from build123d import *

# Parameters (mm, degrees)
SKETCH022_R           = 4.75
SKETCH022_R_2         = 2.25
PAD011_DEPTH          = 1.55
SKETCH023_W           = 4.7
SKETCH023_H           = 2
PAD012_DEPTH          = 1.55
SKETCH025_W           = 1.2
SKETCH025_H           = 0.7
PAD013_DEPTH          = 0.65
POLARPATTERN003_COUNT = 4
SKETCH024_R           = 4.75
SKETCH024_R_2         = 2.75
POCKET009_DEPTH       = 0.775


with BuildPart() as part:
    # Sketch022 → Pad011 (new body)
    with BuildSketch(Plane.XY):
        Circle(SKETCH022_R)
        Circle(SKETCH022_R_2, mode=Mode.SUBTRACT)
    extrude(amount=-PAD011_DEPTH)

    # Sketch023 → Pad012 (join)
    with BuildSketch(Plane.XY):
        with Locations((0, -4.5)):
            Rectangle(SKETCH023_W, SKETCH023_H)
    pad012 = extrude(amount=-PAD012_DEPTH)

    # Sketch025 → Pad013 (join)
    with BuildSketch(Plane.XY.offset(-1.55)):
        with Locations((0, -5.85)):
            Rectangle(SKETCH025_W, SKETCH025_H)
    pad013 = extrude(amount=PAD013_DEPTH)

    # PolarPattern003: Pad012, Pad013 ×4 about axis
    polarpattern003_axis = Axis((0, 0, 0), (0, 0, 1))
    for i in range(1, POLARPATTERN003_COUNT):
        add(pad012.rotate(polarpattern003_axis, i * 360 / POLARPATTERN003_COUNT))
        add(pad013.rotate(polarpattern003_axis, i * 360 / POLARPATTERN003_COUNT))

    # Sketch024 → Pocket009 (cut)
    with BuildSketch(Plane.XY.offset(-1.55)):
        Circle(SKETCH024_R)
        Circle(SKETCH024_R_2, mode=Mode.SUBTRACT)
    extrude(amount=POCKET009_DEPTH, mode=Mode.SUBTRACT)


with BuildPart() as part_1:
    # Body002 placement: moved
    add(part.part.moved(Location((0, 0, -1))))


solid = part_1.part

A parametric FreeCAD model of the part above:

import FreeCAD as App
import Part
import Sketcher
from FreeCAD import Vector
Q = App.Units.Quantity

doc = App.newDocument("Part")
params = doc.addObject("Spreadsheet::Sheet", "Params")
for row, (alias, value) in enumerate([
    ("sketch1_diameter", "9.5 mm"),
    ("sketch1_diameter2", "4.5 mm"),
    ("pad1_length", "1.55 mm"),
    ("sketch2_height", "2 mm"),
    ("sketch2_width", "4.7 mm"),
    ("pad2_length", "1.55 mm"),
    ("sketch3_width", "1.2 mm"),
    ("sketch3_height", "0.7 mm"),
    ("pad3_length", "0.65 mm"),
    ("sketch4_diameter", "9.5 mm"),
    ("sketch4_diameter2", "5.5 mm"),
    ("pocket1_length", "0.775 mm"),
], start=1):
    params.set(f"A{row}", alias)
    params.set(f"B{row}", "=" + value)
    params.setAlias(f"B{row}", alias)

body = doc.addObject("PartDesign::Body", "Body")

sketch1 = doc.addObject("Sketcher::SketchObject", "Sketch")
body.addObject(sketch1)
sketch1.AttachmentSupport = (doc.XY_Plane, [""])
sketch1.MapMode = "FlatFace"
sketch1.addGeometry([
    Part.Circle(Vector(0, 0, 0), Vector(0, 0, 1), 4.8),
    Part.Circle(Vector(0, 0, 0), Vector(0, 0, 1), 2.2),
], False)
sketch1.addConstraint([
    Sketcher.Constraint("Coincident", 0, 3, -1, 1),
    Sketcher.Constraint("Coincident", 1, 3, -1, 1),
    Sketcher.Constraint("Diameter", 0, Q("9.5 mm")),
    Sketcher.Constraint("Diameter", 1, Q("4.5 mm")),
])
sketch1.setExpression("Constraints[2]", "Params.sketch1_diameter")
sketch1.setExpression("Constraints[3]", "Params.sketch1_diameter2")
pad1 = doc.addObject("PartDesign::Pad", "Pad")
body.addObject(pad1)
pad1.Profile = sketch1
pad1.setExpression("Length", "Params.pad1_length")
pad1.Reversed = True

sketch2 = doc.addObject("Sketcher::SketchObject", "Sketch001")
body.addObject(sketch2)
sketch2.AttachmentSupport = (doc.XY_Plane, [""])
sketch2.MapMode = "FlatFace"
sketch2.addGeometry([
    Part.LineSegment(Vector(-2.4, -3.5, 0), Vector(-2.4, -5.5, 0)),
    Part.LineSegment(Vector(-2.4, -5.5, 0), Vector(2.4, -5.5, 0)),
    Part.LineSegment(Vector(2.4, -5.5, 0), Vector(2.4, -3.5, 0)),
    Part.LineSegment(Vector(2.4, -3.5, 0), Vector(-2.4, -3.5, 0)),
], False)
sketch2.addConstraint([
    Sketcher.Constraint("Coincident", 0, 2, 1, 1),
    Sketcher.Constraint("Coincident", 1, 2, 2, 1),
    Sketcher.Constraint("Coincident", 2, 2, 3, 1),
    Sketcher.Constraint("Coincident", 3, 2, 0, 1),
    Sketcher.Constraint("Vertical", 0),
    Sketcher.Constraint("Horizontal", 1),
    Sketcher.Constraint("Vertical", 2),
    Sketcher.Constraint("Horizontal", 3),
    Sketcher.Constraint("DistanceY", 0, 2, 0, 1, Q("2 mm")),
    Sketcher.Constraint("DistanceX", 1, 1, 1, 2, Q("4.7 mm")),
    Sketcher.Constraint("DistanceY", 0, 2, -1, 1, Q("5.5 mm")),
    Sketcher.Constraint("DistanceX", 0, 2, -1, 1, Q("2.35 mm")),
])
sketch2.setExpression("Constraints[8]", "Params.sketch2_height")
sketch2.setExpression("Constraints[9]", "Params.sketch2_width")
pad2 = doc.addObject("PartDesign::Pad", "Pad001")
body.addObject(pad2)
pad2.Profile = sketch2
pad2.setExpression("Length", "Params.pad2_length")
pad2.Reversed = True

sketch3 = doc.addObject("Sketcher::SketchObject", "Sketch002")
body.addObject(sketch3)
sketch3.AttachmentSupport = (doc.XY_Plane, [""])
sketch3.MapMode = "FlatFace"
sketch3.AttachmentOffset = App.Placement(Vector(0, 0, -1.55), App.Rotation())
sketch3.addGeometry([
    Part.LineSegment(Vector(-0.6, -5.5, 0), Vector(-0.6, -6.2, 0)),
    Part.LineSegment(Vector(-0.6, -6.2, 0), Vector(0.6, -6.2, 0)),
    Part.LineSegment(Vector(0.6, -6.2, 0), Vector(0.6, -5.5, 0)),
    Part.LineSegment(Vector(0.6, -5.5, 0), Vector(-0.6, -5.5, 0)),
], False)
sketch3.addConstraint([
    Sketcher.Constraint("Coincident", 0, 2, 1, 1),
    Sketcher.Constraint("Coincident", 1, 2, 2, 1),
    Sketcher.Constraint("Coincident", 2, 2, 3, 1),
    Sketcher.Constraint("Coincident", 3, 2, 0, 1),
    Sketcher.Constraint("Vertical", 0),
    Sketcher.Constraint("Horizontal", 1),
    Sketcher.Constraint("Vertical", 2),
    Sketcher.Constraint("Horizontal", 3),
    Sketcher.Constraint("DistanceX", 1, 1, 1, 2, Q("1.2 mm")),
    Sketcher.Constraint("DistanceY", 0, 2, 0, 1, Q("0.7 mm")),
    Sketcher.Constraint("DistanceX", 0, 2, -1, 1, Q("0.6 mm")),
    Sketcher.Constraint("DistanceY", 0, 2, -1, 1, Q("6.2 mm")),
])
sketch3.setExpression("Constraints[8]", "Params.sketch3_width")
sketch3.setExpression("Constraints[9]", "Params.sketch3_height")
pad3 = doc.addObject("PartDesign::Pad", "Pad002")
body.addObject(pad3)
pad3.Profile = sketch3
pad3.setExpression("Length", "Params.pad3_length")
doc.recompute()

polarpattern = doc.addObject("PartDesign::PolarPattern", "PolarPattern")
body.addObject(polarpattern)
polarpattern.Originals = [pad2, pad3]
polarpattern.Axis = (doc.Z_Axis, [""])
polarpattern.Angle = 360
polarpattern.Occurrences = 4
body.Tip = polarpattern

sketch4 = doc.addObject("Sketcher::SketchObject", "Sketch003")
body.addObject(sketch4)
sketch4.AttachmentSupport = (doc.XY_Plane, [""])
sketch4.MapMode = "FlatFace"
sketch4.AttachmentOffset = App.Placement(Vector(0, 0, -1.55), App.Rotation())
sketch4.addGeometry([
    Part.Circle(Vector(0, 0, 0), Vector(0, 0, 1), 4.8),
    Part.Circle(Vector(0, 0, 0), Vector(0, 0, 1), 2.8),
], False)
sketch4.addConstraint([
    Sketcher.Constraint("Coincident", 0, 3, -1, 1),
    Sketcher.Constraint("Coincident", 1, 3, -1, 1),
    Sketcher.Constraint("Diameter", 0, Q("9.5 mm")),
    Sketcher.Constraint("Diameter", 1, Q("5.5 mm")),
])
sketch4.setExpression("Constraints[2]", "Params.sketch4_diameter")
sketch4.setExpression("Constraints[3]", "Params.sketch4_diameter2")
pocket1 = doc.addObject("PartDesign::Pocket", "Pocket")
body.addObject(pocket1)
pocket1.Profile = sketch4
pocket1.setExpression("Length", "Params.pocket1_length")
pocket1.Reversed = True
body2 = doc.addObject("PartDesign::Body", "Body001")
doc.recompute()

body.Placement = App.Placement(Vector(0, 0, -1), App.Rotation(Vector(0, 0, 1), 0))
boolean = doc.addObject("PartDesign::Boolean", "Boolean")
body2.addObject(boolean)
boolean.Type = "Fuse"
boolean.addObjects([body])

doc.recompute()
